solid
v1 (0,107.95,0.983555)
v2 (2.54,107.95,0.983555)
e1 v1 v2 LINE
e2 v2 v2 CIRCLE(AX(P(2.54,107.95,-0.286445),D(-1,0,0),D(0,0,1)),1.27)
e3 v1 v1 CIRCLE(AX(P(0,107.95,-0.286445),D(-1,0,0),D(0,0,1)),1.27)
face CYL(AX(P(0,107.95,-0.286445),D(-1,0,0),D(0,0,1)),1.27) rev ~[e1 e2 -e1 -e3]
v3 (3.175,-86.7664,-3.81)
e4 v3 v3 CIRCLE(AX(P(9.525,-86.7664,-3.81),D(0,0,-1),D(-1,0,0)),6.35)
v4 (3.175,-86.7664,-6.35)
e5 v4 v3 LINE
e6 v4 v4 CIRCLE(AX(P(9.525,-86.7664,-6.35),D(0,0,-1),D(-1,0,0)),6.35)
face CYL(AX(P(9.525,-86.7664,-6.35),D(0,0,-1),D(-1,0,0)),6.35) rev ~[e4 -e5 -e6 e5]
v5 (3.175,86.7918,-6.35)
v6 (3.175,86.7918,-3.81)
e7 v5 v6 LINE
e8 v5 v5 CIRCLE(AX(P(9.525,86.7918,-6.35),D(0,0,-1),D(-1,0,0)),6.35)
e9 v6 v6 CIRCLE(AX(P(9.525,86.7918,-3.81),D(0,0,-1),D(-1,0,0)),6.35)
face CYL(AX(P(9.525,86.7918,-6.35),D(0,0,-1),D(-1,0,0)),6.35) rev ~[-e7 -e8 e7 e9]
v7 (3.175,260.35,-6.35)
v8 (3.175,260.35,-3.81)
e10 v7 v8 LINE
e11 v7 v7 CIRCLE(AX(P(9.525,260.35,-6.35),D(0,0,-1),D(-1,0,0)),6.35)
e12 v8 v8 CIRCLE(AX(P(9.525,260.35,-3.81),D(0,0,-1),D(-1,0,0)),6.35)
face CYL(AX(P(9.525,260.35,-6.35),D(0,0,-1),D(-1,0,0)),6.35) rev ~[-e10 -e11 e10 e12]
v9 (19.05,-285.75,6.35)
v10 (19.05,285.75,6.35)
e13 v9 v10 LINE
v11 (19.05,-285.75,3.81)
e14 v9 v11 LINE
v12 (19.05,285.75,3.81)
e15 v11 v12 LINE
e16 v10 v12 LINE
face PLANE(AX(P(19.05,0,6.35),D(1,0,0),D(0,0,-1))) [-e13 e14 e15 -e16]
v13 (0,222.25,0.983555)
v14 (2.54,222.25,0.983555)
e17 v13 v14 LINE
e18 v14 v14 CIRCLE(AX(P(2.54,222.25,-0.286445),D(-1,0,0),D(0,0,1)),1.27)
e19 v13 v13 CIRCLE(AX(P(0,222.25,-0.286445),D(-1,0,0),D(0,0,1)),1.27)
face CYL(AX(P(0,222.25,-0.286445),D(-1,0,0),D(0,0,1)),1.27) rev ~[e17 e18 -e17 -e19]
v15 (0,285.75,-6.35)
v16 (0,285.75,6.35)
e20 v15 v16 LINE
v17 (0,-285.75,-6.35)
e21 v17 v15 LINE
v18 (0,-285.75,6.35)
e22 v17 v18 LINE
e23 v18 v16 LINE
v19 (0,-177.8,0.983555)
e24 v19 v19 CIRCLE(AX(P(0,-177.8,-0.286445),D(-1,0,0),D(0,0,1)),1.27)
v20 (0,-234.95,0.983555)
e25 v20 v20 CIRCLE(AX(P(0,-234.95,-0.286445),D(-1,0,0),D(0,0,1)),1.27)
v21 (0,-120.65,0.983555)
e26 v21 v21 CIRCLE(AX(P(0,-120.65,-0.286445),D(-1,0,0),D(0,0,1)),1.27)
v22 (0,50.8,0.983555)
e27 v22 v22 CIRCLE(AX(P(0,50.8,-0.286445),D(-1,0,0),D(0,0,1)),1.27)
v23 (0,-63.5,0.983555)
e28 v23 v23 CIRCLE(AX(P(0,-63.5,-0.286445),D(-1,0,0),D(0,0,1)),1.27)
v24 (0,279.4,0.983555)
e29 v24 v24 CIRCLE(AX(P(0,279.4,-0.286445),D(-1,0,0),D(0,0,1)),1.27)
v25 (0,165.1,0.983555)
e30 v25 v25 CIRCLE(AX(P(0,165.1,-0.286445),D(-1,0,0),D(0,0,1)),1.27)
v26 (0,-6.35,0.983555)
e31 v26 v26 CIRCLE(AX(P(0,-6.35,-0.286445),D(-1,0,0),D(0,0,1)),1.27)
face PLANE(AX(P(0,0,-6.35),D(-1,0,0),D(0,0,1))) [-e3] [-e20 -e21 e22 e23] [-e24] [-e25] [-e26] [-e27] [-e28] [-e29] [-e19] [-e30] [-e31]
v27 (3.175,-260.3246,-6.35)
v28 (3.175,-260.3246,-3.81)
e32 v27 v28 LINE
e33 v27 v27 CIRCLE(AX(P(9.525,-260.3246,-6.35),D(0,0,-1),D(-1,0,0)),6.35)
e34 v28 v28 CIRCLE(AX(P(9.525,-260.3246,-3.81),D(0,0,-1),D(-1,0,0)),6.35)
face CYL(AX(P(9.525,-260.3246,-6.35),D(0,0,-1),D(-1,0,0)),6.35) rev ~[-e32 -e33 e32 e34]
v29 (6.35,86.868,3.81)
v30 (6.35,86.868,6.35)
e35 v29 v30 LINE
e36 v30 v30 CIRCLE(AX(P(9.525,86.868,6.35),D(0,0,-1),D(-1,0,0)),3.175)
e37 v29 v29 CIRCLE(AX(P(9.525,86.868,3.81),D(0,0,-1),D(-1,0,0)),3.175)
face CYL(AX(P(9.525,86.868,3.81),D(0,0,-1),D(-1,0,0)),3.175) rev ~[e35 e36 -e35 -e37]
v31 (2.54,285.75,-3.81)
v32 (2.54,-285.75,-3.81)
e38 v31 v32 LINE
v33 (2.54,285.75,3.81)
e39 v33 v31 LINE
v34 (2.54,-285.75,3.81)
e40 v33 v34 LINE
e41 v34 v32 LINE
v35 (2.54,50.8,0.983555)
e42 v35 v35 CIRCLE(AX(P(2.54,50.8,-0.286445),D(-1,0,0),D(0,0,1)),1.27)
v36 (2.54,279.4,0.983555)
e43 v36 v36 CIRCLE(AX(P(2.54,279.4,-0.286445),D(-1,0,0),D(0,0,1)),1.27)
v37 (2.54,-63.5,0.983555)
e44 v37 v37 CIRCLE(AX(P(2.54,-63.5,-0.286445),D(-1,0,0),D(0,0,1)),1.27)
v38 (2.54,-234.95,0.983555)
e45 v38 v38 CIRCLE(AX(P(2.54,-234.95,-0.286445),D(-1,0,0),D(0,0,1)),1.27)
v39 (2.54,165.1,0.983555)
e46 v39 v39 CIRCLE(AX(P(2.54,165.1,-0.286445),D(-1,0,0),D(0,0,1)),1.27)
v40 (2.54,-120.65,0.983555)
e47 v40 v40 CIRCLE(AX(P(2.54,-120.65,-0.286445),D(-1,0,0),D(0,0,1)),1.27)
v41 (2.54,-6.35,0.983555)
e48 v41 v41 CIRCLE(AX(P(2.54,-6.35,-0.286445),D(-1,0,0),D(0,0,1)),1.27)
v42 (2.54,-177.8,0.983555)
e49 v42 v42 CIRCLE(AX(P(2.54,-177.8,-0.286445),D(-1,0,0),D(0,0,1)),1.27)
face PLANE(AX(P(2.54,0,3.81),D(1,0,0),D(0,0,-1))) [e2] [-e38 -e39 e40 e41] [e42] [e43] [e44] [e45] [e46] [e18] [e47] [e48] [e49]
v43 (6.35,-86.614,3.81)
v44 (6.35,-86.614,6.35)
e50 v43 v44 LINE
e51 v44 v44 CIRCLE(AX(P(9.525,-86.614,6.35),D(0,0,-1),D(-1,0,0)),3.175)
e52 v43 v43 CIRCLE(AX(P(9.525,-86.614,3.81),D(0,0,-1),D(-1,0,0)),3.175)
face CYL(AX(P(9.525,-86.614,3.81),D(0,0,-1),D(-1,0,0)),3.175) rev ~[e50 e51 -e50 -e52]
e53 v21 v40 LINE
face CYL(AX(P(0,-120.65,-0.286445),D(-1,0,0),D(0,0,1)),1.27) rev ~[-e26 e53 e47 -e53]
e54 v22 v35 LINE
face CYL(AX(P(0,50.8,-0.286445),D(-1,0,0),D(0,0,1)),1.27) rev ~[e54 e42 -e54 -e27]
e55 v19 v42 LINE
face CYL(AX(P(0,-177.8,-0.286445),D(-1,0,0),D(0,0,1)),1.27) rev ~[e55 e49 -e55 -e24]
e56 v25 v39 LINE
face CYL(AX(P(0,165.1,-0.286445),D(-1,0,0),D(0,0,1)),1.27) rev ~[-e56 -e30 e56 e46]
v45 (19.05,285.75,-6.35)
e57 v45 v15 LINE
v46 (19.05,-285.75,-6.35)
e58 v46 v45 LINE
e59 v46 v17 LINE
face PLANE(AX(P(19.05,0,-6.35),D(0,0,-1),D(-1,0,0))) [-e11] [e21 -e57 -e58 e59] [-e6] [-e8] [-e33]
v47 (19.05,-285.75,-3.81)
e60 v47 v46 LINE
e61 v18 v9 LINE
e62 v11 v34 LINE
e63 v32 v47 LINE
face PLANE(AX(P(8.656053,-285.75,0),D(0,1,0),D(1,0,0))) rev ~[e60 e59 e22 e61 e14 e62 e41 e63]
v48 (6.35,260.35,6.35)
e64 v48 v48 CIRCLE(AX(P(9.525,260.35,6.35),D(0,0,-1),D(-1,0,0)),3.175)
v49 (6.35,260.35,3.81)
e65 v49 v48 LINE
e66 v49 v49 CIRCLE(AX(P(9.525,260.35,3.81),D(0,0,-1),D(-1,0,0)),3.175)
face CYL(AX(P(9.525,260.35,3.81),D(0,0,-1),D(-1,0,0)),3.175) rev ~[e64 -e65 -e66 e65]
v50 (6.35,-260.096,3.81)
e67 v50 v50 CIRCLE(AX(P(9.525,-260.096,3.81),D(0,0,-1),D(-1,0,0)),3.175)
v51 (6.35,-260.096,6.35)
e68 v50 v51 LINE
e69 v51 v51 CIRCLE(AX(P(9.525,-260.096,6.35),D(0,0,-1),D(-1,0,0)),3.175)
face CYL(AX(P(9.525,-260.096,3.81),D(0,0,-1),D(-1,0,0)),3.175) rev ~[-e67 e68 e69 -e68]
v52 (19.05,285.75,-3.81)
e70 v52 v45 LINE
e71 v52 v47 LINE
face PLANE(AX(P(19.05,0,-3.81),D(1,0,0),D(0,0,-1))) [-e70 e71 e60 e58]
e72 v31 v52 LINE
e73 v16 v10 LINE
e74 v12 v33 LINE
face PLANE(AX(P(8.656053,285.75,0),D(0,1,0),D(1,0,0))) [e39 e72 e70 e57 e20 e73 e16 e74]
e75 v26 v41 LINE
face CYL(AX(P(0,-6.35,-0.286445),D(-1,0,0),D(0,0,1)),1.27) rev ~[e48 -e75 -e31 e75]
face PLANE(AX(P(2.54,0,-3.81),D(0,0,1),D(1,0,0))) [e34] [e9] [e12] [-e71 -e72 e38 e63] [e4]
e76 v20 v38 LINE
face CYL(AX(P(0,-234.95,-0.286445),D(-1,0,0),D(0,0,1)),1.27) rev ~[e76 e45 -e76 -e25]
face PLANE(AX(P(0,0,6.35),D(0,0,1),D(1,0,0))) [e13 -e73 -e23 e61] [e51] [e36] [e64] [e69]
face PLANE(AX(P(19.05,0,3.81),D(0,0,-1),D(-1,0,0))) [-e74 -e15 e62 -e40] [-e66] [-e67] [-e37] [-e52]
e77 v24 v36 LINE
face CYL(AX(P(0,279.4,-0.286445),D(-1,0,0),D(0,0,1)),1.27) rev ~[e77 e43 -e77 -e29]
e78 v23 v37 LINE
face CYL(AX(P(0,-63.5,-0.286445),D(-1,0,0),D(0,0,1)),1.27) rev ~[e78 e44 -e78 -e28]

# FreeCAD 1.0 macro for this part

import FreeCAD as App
import Part
import Sketcher
Q = App.Units.Quantity


def add_polygon(sketch, points):
    """Adds a closed chain of lines whose ends are joined by coincident constraints."""
    first, n = sketch.GeometryCount, len(points)
    for a, b in zip(points, points[1:] + points[:1]):
        sketch.addGeometry(Part.LineSegment(App.Vector(*a, 0), App.Vector(*b, 0)), False)
    for i in range(n):
        sketch.addConstraint(Sketcher.Constraint("Coincident", first + i, 2, first + (i + 1) % n, 1))

doc = App.newDocument("Part")
body = doc.addObject("PartDesign::Body", "Body")

sketch1 = body.newObject("Sketcher::SketchObject", "Sketch")
sketch1.AttachmentSupport = (doc.getObject("XZ_Plane"), [""])
sketch1.MapMode = "FlatFace"
add_polygon(sketch1, [(19.05, -3.81), (19.05, -6.35), (0, -6.35), (0, 6.35), (19.05, 6.35), (19.05, 3.81), (2.54, 3.81), (2.54, -3.81)])
sketch1.addConstraint(Sketcher.Constraint("Vertical", 0))
sketch1.addConstraint(Sketcher.Constraint("Horizontal", 1))
sketch1.addConstraint(Sketcher.Constraint("Vertical", 2))
sketch1.addConstraint(Sketcher.Constraint("Horizontal", 3))
sketch1.addConstraint(Sketcher.Constraint("Vertical", 4))
sketch1.addConstraint(Sketcher.Constraint("Horizontal", 5))
sketch1.addConstraint(Sketcher.Constraint("Vertical", 6))
sketch1.addConstraint(Sketcher.Constraint("Horizontal", 7))
sketch1.addConstraint(Sketcher.Constraint("Symmetric", 1, 2, 2, 2, -1, 1))
sketch1.addConstraint(Sketcher.Constraint("Symmetric", 4, 2, 7, 2, -1))
sketch1.addConstraint(Sketcher.Constraint("DistanceY", 0, 2, 0, 1, Q("0.1 in")))
sketch1.addConstraint(Sketcher.Constraint("DistanceY", 2, 1, 2, 2, Q("0.5 in")))
sketch1.addConstraint(Sketcher.Constraint("DistanceX", 1, 2, 1, 1, Q("0.75 in")))
sketch1.addConstraint(Sketcher.Constraint("DistanceX", 5, 2, 5, 1, Q("0.65 in")))
pad1 = body.newObject("PartDesign::Pad", "Pad")
pad1.Profile = sketch1
pad1.Length = Q("22.5 in")
pad1.Midplane = True

sketch2 = body.newObject("Sketcher::SketchObject", "Sketch001")
sketch2.AttachmentSupport = (doc.getObject("YZ_Plane"), [""])
sketch2.MapMode = "FlatFace"
sketch2.addGeometry(Part.Circle(App.Vector(279.4, -0.286445, 0), App.Vector(0, 0, 1), 1.27), False)
sketch2.addGeometry(Part.Circle(App.Vector(222.25, -0.286445, 0), App.Vector(0, 0, 1), 1.27), False)
sketch2.addGeometry(Part.Circle(App.Vector(165.1, -0.286445, 0), App.Vector(0, 0, 1), 1.27), False)
sketch2.addGeometry(Part.Circle(App.Vector(107.95, -0.286445, 0), App.Vector(0, 0, 1), 1.27), False)
sketch2.addGeometry(Part.Circle(App.Vector(50.8, -0.286445, 0), App.Vector(0, 0, 1), 1.27), False)
sketch2.addGeometry(Part.Circle(App.Vector(-6.35, -0.286445, 0), App.Vector(0, 0, 1), 1.27), False)
sketch2.addGeometry(Part.Circle(App.Vector(-63.5, -0.286445, 0), App.Vector(0, 0, 1), 1.27), False)
sketch2.addGeometry(Part.Circle(App.Vector(-120.65, -0.286445, 0), App.Vector(0, 0, 1), 1.27), False)
sketch2.addGeometry(Part.Circle(App.Vector(-177.8, -0.286445, 0), App.Vector(0, 0, 1), 1.27), False)
sketch2.addGeometry(Part.Circle(App.Vector(-234.95, -0.286445, 0), App.Vector(0, 0, 1), 1.27), False)
sketch2.addConstraint(Sketcher.Constraint("Equal", 0, 1))
sketch2.addConstraint(Sketcher.Constraint("Equal", 1, 2))
sketch2.addConstraint(Sketcher.Constraint("Equal", 2, 3))
sketch2.addConstraint(Sketcher.Constraint("Equal", 3, 4))
sketch2.addConstraint(Sketcher.Constraint("Equal", 4, 5))
sketch2.addConstraint(Sketcher.Constraint("Equal", 5, 6))
sketch2.addConstraint(Sketcher.Constraint("Equal", 6, 7))
sketch2.addConstraint(Sketcher.Constraint("Equal", 7, 8))
sketch2.addConstraint(Sketcher.Constraint("Equal", 8, 9))
sketch2.addConstraint(Sketcher.Constraint("Horizontal", 0, 3, 1, 3))
sketch2.addConstraint(Sketcher.Constraint("Horizontal", 1, 3, 2, 3))
sketch2.addConstraint(Sketcher.Constraint("Horizontal", 2, 3, 3, 3))
sketch2.addConstraint(Sketcher.Constraint("Horizontal", 3, 3, 4, 3))
sketch2.addConstraint(Sketcher.Constraint("Horizontal", 4, 3, 5, 3))
sketch2.addConstraint(Sketcher.Constraint("Horizontal", 5, 3, 6, 3))
sketch2.addConstraint(Sketcher.Constraint("Horizontal", 6, 3, 7, 3))
sketch2.addConstraint(Sketcher.Constraint("Horizontal", 7, 3, 8, 3))
sketch2.addConstraint(Sketcher.Constraint("Horizontal", 8, 3, 9, 3))
sketch2.addConstraint(Sketcher.Constraint("Diameter", 0, Q("0.1 in")))
sketch2.addConstraint(Sketcher.Constraint("DistanceX", -1, 1, 0, 3, Q("11 in")))
sketch2.addConstraint(Sketcher.Constraint("DistanceX", -1, 1, 4, 3, Q("2 in")))
sketch2.addConstraint(Sketcher.Constraint("DistanceX", 8, 3, -1, 1, Q("7 in")))
sketch2.addConstraint(Sketcher.Constraint("DistanceX", 5, 3, 1, 3, Q("9 in")))
sketch2.addConstraint(Sketcher.Constraint("DistanceX", 6, 3, 2, 3, Q("9 in")))
sketch2.addConstraint(Sketcher.Constraint("DistanceX", 7, 3, 3, 3, Q("9 in")))
sketch2.addConstraint(Sketcher.Constraint("DistanceX", 9, 3, 5, 3, Q("9 in")))
sketch2.addConstraint(Sketcher.Constraint("DistanceX", -1, 1, 2, 3, Q("6.5 in")))
sketch2.addConstraint(Sketcher.Constraint("DistanceX", 3, 3, 1, 3, Q("4.5 in")))
sketch2.addConstraint(Sketcher.Constraint("DistanceX", -1, 1, 1, 3, Q("8.75 in")))
sketch2.addConstraint(Sketcher.Constraint("DistanceY", 0, 3, -1, 1, Q("0.286445 mm")))
pocket1 = body.newObject("PartDesign::Pocket", "Pocket")
pocket1.Profile = sketch2
pocket1.Type = "ThroughAll"
pocket1.Reversed = True

sketch3 = body.newObject("Sketcher::SketchObject", "Sketch002")
sketch3.AttachmentSupport = (doc.getObject("XY_Plane"), [""])
sketch3.MapMode = "FlatFace"
sketch3.AttachmentOffset = App.Placement(App.Vector(0, 0, 0.15 * 25.4), App.Rotation())
sketch3.addGeometry(Part.Circle(App.Vector(9.525, 260.35, 0), App.Vector(0, 0, 1), 3.175), False)
sketch3.addGeometry(Part.Circle(App.Vector(9.525, 86.868, 0), App.Vector(0, 0, 1), 3.175), False)
sketch3.addGeometry(Part.Circle(App.Vector(9.525, -86.614, 0), App.Vector(0, 0, 1), 3.175), False)
sketch3.addGeometry(Part.Circle(App.Vector(9.525, -260.096, 0), App.Vector(0, 0, 1), 3.175), False)
sketch3.addConstraint(Sketcher.Constraint("Equal", 0, 1))
sketch3.addConstraint(Sketcher.Constraint("Equal", 1, 2))
sketch3.addConstraint(Sketcher.Constraint("Equal", 2, 3))
sketch3.addConstraint(Sketcher.Constraint("Vertical", 0, 3, 1, 3))
sketch3.addConstraint(Sketcher.Constraint("Vertical", 1, 3, 2, 3))
sketch3.addConstraint(Sketcher.Constraint("Vertical", 2, 3, 3, 3))
sketch3.addConstraint(Sketcher.Constraint("Diameter", 0, Q("0.25 in")))
sketch3.addConstraint(Sketcher.Constraint("DistanceY", -1, 1, 0, 3, Q("10.25 in")))
sketch3.addConstraint(Sketcher.Constraint("DistanceY", -1, 1, 1, 3, Q("3.42 in")))
sketch3.addConstraint(Sketcher.Constraint("DistanceY", 2, 3, -1, 1, Q("3.41 in")))
sketch3.addConstraint(Sketcher.Constraint("DistanceY", 3, 3, -1, 1, Q("10.24 in")))
sketch3.addConstraint(Sketcher.Constraint("DistanceX", -1, 1, 0, 3, Q("0.375 in")))
pocket2 = body.newObject("PartDesign::Pocket", "Pocket001")
pocket2.Profile = sketch3
pocket2.Length = Q("5.52 in")
pocket2.Reversed = True

sketch4 = body.newObject("Sketcher::SketchObject", "Sketch003")
sketch4.AttachmentSupport = (doc.getObject("XY_Plane"), [""])
sketch4.MapMode = "FlatFace"
sketch4.AttachmentOffset = App.Placement(App.Vector(0, 0, -0.25 * 25.4), App.Rotation())
sketch4.addGeometry(Part.Circle(App.Vector(9.525, 260.35, 0), App.Vector(0, 0, 1), 6.35), False)
sketch4.addGeometry(Part.Circle(App.Vector(9.525, 86.7918, 0), App.Vector(0, 0, 1), 6.35), False)
sketch4.addGeometry(Part.Circle(App.Vector(9.525, -86.7664, 0), App.Vector(0, 0, 1), 6.35), False)
sketch4.addGeometry(Part.Circle(App.Vector(9.525, -260.3246, 0), App.Vector(0, 0, 1), 6.35), False)
sketch4.addConstraint(Sketcher.Constraint("Equal", 0, 1))
sketch4.addConstraint(Sketcher.Constraint("Equal", 1, 2))
sketch4.addConstraint(Sketcher.Constraint("Equal", 2, 3))
sketch4.addConstraint(Sketcher.Constraint("Vertical", 0, 3, 1, 3))
sketch4.addConstraint(Sketcher.Constraint("Vertical", 1, 3, 2, 3))
sketch4.addConstraint(Sketcher.Constraint("Vertical", 2, 3, 3, 3))
sketch4.addConstraint(Sketcher.Constraint("Diameter", 0, Q("0.5 in")))
sketch4.addConstraint(Sketcher.Constraint("DistanceY", -1, 1, 0, 3, Q("10.25 in")))
sketch4.addConstraint(Sketcher.Constraint("DistanceX", -1, 1, 0, 3, Q("0.375 in")))
sketch4.addConstraint(Sketcher.Constraint("DistanceY", -1, 1, 1, 3, Q("3.417 in")))
sketch4.addConstraint(Sketcher.Constraint("DistanceY", 2, 3, -1, 1, Q("3.416 in")))
sketch4.addConstraint(Sketcher.Constraint("DistanceY", 3, 3, -1, 1, Q("10.249 in")))
pocket3 = body.newObject("PartDesign::Pocket", "Pocket002")
pocket3.Profile = sketch4
pocket3.Length = Q("0.1 in")
pocket3.Reversed = True

doc.recompute()
